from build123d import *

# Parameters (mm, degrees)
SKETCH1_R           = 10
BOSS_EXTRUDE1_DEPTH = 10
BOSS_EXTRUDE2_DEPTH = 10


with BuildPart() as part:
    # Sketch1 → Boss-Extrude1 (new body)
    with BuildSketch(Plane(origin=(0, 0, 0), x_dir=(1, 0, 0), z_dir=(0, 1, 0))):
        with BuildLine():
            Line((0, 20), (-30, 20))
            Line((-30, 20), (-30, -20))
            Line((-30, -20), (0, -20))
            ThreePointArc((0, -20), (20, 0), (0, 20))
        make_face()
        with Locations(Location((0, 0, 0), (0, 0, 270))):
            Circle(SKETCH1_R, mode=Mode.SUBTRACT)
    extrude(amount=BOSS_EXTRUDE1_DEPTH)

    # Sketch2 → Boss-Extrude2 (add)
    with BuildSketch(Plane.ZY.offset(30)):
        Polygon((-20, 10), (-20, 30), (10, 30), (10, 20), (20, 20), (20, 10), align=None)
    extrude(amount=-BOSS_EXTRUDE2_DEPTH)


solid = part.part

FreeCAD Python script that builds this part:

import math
import FreeCAD as App
import Part
import Sketcher
Q = App.Units.Quantity

doc = App.newDocument("Part")
body = doc.addObject("PartDesign::Body", "Body")

# Sketch on XZ plane
sketch1 = body.newObject("Sketcher::SketchObject", "Sketch")
sketch1.AttachmentSupport = (doc.getObject("XZ_Plane"), [""])
sketch1.MapMode = "FlatFace"
sketch1.addGeometry(Part.LineSegment(App.Vector(0, -20, 0), App.Vector(-30, -20, 0)), False)
sketch1.addGeometry(Part.LineSegment(App.Vector(-30, -20, 0), App.Vector(-30, 20, 0)), False)
sketch1.addGeometry(Part.LineSegment(App.Vector(-30, 20, 0), App.Vector(0, 20, 0)), False)
sketch1.addGeometry(Part.ArcOfCircle(Part.Circle(App.Vector(0, 0, 0), App.Vector(0, 0, 1), 20), math.radians(-90), math.radians(90)), False)
sketch1.addGeometry(Part.Circle(App.Vector(0, 0, 0), App.Vector(0, 0, 1), 10), False)
sketch1.addConstraint(Sketcher.Constraint("Coincident", 0, 2, 1, 1))
sketch1.addConstraint(Sketcher.Constraint("Coincident", 1, 2, 2, 1))
sketch1.addConstraint(Sketcher.Constraint("Tangent", 2, 2, 3, 2))
sketch1.addConstraint(Sketcher.Constraint("Tangent", 3, 1, 0, 1))
sketch1.addConstraint(Sketcher.Constraint("Horizontal", 0))
sketch1.addConstraint(Sketcher.Constraint("Vertical", 1))
sketch1.addConstraint(Sketcher.Constraint("Horizontal", 2))
sketch1.addConstraint(Sketcher.Constraint("Coincident", 3, 3, -1, 1))
sketch1.addConstraint(Sketcher.Constraint("Coincident", 4, 3, -1, 1))
sketch1.addConstraint(Sketcher.Constraint("Diameter", 4, Q("20 mm")))
sketch1.addConstraint(Sketcher.Constraint("Radius", 3, Q("20 mm")))
sketch1.addConstraint(Sketcher.Constraint("DistanceX", 0, 2, 0, 1, Q("30 mm")))
pad1 = body.newObject("PartDesign::Pad", "Pad")
pad1.Profile = sketch1
pad1.Length = 10
pad1.Reversed = True

# Sketch on YZ plane
sketch2 = body.newObject("Sketcher::SketchObject", "Sketch001")
sketch2.AttachmentSupport = (doc.getObject("YZ_Plane"), [""])
sketch2.MapMode = "FlatFace"
sketch2.AttachmentOffset = App.Placement(App.Vector(0, 0, -30), App.Rotation())
sketch2.addGeometry(Part.LineSegment(App.Vector(30, -20, 0), App.Vector(10, -20, 0)), False)
sketch2.addGeometry(Part.LineSegment(App.Vector(10, -20, 0), App.Vector(10, 20, 0)), False)
sketch2.addGeometry(Part.LineSegment(App.Vector(10, 20, 0), App.Vector(20, 20, 0)), False)
sketch2.addGeometry(Part.LineSegment(App.Vector(20, 20, 0), App.Vector(20, 10, 0)), False)
sketch2.addGeometry(Part.LineSegment(App.Vector(20, 10, 0), App.Vector(30, 10, 0)), False)
sketch2.addGeometry(Part.LineSegment(App.Vector(30, 10, 0), App.Vector(30, -20, 0)), False)
sketch2.addConstraint(Sketcher.Constraint("Coincident", 0, 2, 1, 1))
sketch2.addConstraint(Sketcher.Constraint("Coincident", 1, 2, 2, 1))
sketch2.addConstraint(Sketcher.Constraint("Coincident", 2, 2, 3, 1))
sketch2.addConstraint(Sketcher.Constraint("Coincident", 3, 2, 4, 1))
sketch2.addConstraint(Sketcher.Constraint("Coincident", 4, 2, 5, 1))
sketch2.addConstraint(Sketcher.Constraint("Coincident", 5, 2, 0, 1))
sketch2.addConstraint(Sketcher.Constraint("Horizontal", 0))
sketch2.addConstraint(Sketcher.Constraint("Vertical", 1))
sketch2.addConstraint(Sketcher.Constraint("Horizontal", 2))
sketch2.addConstraint(Sketcher.Constraint("Vertical", 3))
sketch2.addConstraint(Sketcher.Constraint("Horizontal", 4))
sketch2.addConstraint(Sketcher.Constraint("Vertical", 5))
sketch2.addConstraint(Sketcher.Constraint("Equal", 2, 4))
sketch2.addConstraint(Sketcher.Constraint("Equal", 4, 3))
sketch2.addConstraint(Sketcher.Constraint("DistanceX", 0, 2, 0, 1, Q("20 mm")))
sketch2.addConstraint(Sketcher.Constraint("DistanceY", 1, 1, 1, 2, Q("40 mm")))
sketch2.addConstraint(Sketcher.Constraint("DistanceX", -1, 1, 0, 2, Q("10 mm")))
sketch2.addConstraint(Sketcher.Constraint("DistanceY", 0, 2, -1, 1, Q("20 mm")))
pad2 = body.newObject("PartDesign::Pad", "Pad001")
pad2.Profile = sketch2
pad2.Length = 10

doc.recompute()
